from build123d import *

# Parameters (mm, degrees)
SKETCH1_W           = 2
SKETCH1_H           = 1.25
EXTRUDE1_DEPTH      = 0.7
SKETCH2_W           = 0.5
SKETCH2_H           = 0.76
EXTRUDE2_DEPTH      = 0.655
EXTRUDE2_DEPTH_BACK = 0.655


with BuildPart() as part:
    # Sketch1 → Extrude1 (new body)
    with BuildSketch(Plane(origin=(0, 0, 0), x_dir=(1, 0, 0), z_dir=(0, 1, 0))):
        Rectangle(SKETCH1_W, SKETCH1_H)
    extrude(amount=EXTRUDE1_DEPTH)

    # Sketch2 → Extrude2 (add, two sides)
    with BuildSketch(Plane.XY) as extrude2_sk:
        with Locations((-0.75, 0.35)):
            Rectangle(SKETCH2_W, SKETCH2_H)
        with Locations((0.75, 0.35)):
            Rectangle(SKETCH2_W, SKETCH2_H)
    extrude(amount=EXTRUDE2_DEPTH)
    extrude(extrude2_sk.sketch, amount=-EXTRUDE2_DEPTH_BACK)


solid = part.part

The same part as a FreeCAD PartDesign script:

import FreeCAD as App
import Part
import Sketcher
from FreeCAD import Vector

doc = App.newDocument("Part")
params = doc.addObject("Spreadsheet::Sheet", "Params")
for row, (alias, value) in enumerate([
    ("sketch1_width", "2 mm"),
    ("sketch1_height", "1.25 mm"),
    ("pad1_length", "0.7 mm"),
    ("sketch2_width", "0.5 mm"),
    ("sketch2_height", "0.76 mm"),
    ("pad2_length", "0.655 mm"),
    ("pad2_length2", "0.655 mm"),
], start=1):
    params.set(f"A{row}", alias)
    params.set(f"B{row}", "=" + value)
    params.setAlias(f"B{row}", alias)

body = doc.addObject("PartDesign::Body", "Body")

# Sketch on XZ plane
sketch1 = body.newObject("Sketcher::SketchObject", "Sketch")
sketch1.AttachmentSupport = (doc.getObject("XZ_Plane"), [""])
sketch1.MapMode = "FlatFace"
sketch1.addGeometry(Part.LineSegment(Vector(-1, -0.625, 0), Vector(-1, 0.625, 0)), False)
sketch1.addGeometry(Part.LineSegment(Vector(-1, 0.625, 0), Vector(1, 0.625, 0)), False)
sketch1.addGeometry(Part.LineSegment(Vector(1, 0.625, 0), Vector(1, -0.625, 0)), False)
sketch1.addGeometry(Part.LineSegment(Vector(1, -0.625, 0), Vector(-1, -0.625, 0)), False)
sketch1.addConstraint(Sketcher.Constraint("Coincident", 0, 2, 1, 1))
sketch1.addConstraint(Sketcher.Constraint("Coincident", 1, 2, 2, 1))
sketch1.addConstraint(Sketcher.Constraint("Coincident", 2, 2, 3, 1))
sketch1.addConstraint(Sketcher.Constraint("Coincident", 3, 2, 0, 1))
sketch1.addConstraint(Sketcher.Constraint("Vertical", 0))
sketch1.addConstraint(Sketcher.Constraint("Horizontal", 1))
sketch1.addConstraint(Sketcher.Constraint("Vertical", 2))
sketch1.addConstraint(Sketcher.Constraint("Horizontal", 3))
sketch1.addConstraint(Sketcher.Constraint("Symmetric", 0, 2, 2, 2, -1, 1))
sketch1.addConstraint(Sketcher.Constraint("DistanceX", 1, 1, 1, 2, 2.0))
sketch1.addConstraint(Sketcher.Constraint("DistanceY", 0, 1, 0, 2, 1.25))
sketch1.setExpression("Constraints[9]", "Params.sketch1_width")
sketch1.setExpression("Constraints[10]", "Params.sketch1_height")
pad1 = body.newObject("PartDesign::Pad", "Pad")
pad1.Profile = sketch1
pad1.setExpression("Length", "Params.pad1_length")
pad1.Reversed = True

# Sketch on XY plane
sketch2 = body.newObject("Sketcher::SketchObject", "Sketch001")
sketch2.AttachmentSupport = (doc.getObject("XY_Plane"), [""])
sketch2.MapMode = "FlatFace"
sketch2.addGeometry(Part.LineSegment(Vector(-1, 0.73, 0), Vector(-1, -0.03, 0)), False)
sketch2.addGeometry(Part.LineSegment(Vector(-1, -0.03, 0), Vector(-0.5, -0.03, 0)), False)
sketch2.addGeometry(Part.LineSegment(Vector(-0.5, -0.03, 0), Vector(-0.5, 0.73, 0)), False)
sketch2.addGeometry(Part.LineSegment(Vector(-0.5, 0.73, 0), Vector(-1, 0.73, 0)), False)
sketch2.addGeometry(Part.LineSegment(Vector(0.5, 0.73, 0), Vector(0.5, -0.03, 0)), False)
sketch2.addGeometry(Part.LineSegment(Vector(0.5, -0.03, 0), Vector(1, -0.03, 0)), False)
sketch2.addGeometry(Part.LineSegment(Vector(1, -0.03, 0), Vector(1, 0.73, 0)), False)
sketch2.addGeometry(Part.LineSegment(Vector(1, 0.73, 0), Vector(0.5, 0.73, 0)), False)
sketch2.addConstraint(Sketcher.Constraint("Coincident", 0, 2, 1, 1))
sketch2.addConstraint(Sketcher.Constraint("Coincident", 1, 2, 2, 1))
sketch2.addConstraint(Sketcher.Constraint("Coincident", 2, 2, 3, 1))
sketch2.addConstraint(Sketcher.Constraint("Coincident", 3, 2, 0, 1))
sketch2.addConstraint(Sketcher.Constraint("Coincident", 4, 2, 5, 1))
sketch2.addConstraint(Sketcher.Constraint("Coincident", 5, 2, 6, 1))
sketch2.addConstraint(Sketcher.Constraint("Coincident", 6, 2, 7, 1))
sketch2.addConstraint(Sketcher.Constraint("Coincident", 7, 2, 4, 1))
sketch2.addConstraint(Sketcher.Constraint("Vertical", 0))
sketch2.addConstraint(Sketcher.Constraint("Horizontal", 1))
sketch2.addConstraint(Sketcher.Constraint("Vertical", 2))
sketch2.addConstraint(Sketcher.Constraint("Horizontal", 3))
sketch2.addConstraint(Sketcher.Constraint("Vertical", 4))
sketch2.addConstraint(Sketcher.Constraint("Horizontal", 5))
sketch2.addConstraint(Sketcher.Constraint("Vertical", 6))
sketch2.addConstraint(Sketcher.Constraint("Horizontal", 7))
sketch2.addConstraint(Sketcher.Constraint("Symmetric", 1, 2, 4, 2, -2))
sketch2.addConstraint(Sketcher.Constraint("Symmetric", 3, 2, 6, 2, -2))
sketch2.addConstraint(Sketcher.Constraint("DistanceX", 1, 1, 1, 2, 0.5))
sketch2.addConstraint(Sketcher.Constraint("DistanceX", 0, 2, -1, 1, 1.0))
sketch2.addConstraint(Sketcher.Constraint("DistanceY", 0, 2, 0, 1, 0.76))
sketch2.addConstraint(Sketcher.Constraint("DistanceY", 0, 2, -1, 1, 0.03))
sketch2.setExpression("Constraints[18]", "Params.sketch2_width")
sketch2.setExpression("Constraints[20]", "Params.sketch2_height")
pad2 = body.newObject("PartDesign::Pad", "Pad001")
pad2.Profile = sketch2
pad2.Type = "TwoLengths"
pad2.setExpression("Length", "Params.pad2_length")
pad2.setExpression("Length2", "Params.pad2_length2")

doc.recompute()
